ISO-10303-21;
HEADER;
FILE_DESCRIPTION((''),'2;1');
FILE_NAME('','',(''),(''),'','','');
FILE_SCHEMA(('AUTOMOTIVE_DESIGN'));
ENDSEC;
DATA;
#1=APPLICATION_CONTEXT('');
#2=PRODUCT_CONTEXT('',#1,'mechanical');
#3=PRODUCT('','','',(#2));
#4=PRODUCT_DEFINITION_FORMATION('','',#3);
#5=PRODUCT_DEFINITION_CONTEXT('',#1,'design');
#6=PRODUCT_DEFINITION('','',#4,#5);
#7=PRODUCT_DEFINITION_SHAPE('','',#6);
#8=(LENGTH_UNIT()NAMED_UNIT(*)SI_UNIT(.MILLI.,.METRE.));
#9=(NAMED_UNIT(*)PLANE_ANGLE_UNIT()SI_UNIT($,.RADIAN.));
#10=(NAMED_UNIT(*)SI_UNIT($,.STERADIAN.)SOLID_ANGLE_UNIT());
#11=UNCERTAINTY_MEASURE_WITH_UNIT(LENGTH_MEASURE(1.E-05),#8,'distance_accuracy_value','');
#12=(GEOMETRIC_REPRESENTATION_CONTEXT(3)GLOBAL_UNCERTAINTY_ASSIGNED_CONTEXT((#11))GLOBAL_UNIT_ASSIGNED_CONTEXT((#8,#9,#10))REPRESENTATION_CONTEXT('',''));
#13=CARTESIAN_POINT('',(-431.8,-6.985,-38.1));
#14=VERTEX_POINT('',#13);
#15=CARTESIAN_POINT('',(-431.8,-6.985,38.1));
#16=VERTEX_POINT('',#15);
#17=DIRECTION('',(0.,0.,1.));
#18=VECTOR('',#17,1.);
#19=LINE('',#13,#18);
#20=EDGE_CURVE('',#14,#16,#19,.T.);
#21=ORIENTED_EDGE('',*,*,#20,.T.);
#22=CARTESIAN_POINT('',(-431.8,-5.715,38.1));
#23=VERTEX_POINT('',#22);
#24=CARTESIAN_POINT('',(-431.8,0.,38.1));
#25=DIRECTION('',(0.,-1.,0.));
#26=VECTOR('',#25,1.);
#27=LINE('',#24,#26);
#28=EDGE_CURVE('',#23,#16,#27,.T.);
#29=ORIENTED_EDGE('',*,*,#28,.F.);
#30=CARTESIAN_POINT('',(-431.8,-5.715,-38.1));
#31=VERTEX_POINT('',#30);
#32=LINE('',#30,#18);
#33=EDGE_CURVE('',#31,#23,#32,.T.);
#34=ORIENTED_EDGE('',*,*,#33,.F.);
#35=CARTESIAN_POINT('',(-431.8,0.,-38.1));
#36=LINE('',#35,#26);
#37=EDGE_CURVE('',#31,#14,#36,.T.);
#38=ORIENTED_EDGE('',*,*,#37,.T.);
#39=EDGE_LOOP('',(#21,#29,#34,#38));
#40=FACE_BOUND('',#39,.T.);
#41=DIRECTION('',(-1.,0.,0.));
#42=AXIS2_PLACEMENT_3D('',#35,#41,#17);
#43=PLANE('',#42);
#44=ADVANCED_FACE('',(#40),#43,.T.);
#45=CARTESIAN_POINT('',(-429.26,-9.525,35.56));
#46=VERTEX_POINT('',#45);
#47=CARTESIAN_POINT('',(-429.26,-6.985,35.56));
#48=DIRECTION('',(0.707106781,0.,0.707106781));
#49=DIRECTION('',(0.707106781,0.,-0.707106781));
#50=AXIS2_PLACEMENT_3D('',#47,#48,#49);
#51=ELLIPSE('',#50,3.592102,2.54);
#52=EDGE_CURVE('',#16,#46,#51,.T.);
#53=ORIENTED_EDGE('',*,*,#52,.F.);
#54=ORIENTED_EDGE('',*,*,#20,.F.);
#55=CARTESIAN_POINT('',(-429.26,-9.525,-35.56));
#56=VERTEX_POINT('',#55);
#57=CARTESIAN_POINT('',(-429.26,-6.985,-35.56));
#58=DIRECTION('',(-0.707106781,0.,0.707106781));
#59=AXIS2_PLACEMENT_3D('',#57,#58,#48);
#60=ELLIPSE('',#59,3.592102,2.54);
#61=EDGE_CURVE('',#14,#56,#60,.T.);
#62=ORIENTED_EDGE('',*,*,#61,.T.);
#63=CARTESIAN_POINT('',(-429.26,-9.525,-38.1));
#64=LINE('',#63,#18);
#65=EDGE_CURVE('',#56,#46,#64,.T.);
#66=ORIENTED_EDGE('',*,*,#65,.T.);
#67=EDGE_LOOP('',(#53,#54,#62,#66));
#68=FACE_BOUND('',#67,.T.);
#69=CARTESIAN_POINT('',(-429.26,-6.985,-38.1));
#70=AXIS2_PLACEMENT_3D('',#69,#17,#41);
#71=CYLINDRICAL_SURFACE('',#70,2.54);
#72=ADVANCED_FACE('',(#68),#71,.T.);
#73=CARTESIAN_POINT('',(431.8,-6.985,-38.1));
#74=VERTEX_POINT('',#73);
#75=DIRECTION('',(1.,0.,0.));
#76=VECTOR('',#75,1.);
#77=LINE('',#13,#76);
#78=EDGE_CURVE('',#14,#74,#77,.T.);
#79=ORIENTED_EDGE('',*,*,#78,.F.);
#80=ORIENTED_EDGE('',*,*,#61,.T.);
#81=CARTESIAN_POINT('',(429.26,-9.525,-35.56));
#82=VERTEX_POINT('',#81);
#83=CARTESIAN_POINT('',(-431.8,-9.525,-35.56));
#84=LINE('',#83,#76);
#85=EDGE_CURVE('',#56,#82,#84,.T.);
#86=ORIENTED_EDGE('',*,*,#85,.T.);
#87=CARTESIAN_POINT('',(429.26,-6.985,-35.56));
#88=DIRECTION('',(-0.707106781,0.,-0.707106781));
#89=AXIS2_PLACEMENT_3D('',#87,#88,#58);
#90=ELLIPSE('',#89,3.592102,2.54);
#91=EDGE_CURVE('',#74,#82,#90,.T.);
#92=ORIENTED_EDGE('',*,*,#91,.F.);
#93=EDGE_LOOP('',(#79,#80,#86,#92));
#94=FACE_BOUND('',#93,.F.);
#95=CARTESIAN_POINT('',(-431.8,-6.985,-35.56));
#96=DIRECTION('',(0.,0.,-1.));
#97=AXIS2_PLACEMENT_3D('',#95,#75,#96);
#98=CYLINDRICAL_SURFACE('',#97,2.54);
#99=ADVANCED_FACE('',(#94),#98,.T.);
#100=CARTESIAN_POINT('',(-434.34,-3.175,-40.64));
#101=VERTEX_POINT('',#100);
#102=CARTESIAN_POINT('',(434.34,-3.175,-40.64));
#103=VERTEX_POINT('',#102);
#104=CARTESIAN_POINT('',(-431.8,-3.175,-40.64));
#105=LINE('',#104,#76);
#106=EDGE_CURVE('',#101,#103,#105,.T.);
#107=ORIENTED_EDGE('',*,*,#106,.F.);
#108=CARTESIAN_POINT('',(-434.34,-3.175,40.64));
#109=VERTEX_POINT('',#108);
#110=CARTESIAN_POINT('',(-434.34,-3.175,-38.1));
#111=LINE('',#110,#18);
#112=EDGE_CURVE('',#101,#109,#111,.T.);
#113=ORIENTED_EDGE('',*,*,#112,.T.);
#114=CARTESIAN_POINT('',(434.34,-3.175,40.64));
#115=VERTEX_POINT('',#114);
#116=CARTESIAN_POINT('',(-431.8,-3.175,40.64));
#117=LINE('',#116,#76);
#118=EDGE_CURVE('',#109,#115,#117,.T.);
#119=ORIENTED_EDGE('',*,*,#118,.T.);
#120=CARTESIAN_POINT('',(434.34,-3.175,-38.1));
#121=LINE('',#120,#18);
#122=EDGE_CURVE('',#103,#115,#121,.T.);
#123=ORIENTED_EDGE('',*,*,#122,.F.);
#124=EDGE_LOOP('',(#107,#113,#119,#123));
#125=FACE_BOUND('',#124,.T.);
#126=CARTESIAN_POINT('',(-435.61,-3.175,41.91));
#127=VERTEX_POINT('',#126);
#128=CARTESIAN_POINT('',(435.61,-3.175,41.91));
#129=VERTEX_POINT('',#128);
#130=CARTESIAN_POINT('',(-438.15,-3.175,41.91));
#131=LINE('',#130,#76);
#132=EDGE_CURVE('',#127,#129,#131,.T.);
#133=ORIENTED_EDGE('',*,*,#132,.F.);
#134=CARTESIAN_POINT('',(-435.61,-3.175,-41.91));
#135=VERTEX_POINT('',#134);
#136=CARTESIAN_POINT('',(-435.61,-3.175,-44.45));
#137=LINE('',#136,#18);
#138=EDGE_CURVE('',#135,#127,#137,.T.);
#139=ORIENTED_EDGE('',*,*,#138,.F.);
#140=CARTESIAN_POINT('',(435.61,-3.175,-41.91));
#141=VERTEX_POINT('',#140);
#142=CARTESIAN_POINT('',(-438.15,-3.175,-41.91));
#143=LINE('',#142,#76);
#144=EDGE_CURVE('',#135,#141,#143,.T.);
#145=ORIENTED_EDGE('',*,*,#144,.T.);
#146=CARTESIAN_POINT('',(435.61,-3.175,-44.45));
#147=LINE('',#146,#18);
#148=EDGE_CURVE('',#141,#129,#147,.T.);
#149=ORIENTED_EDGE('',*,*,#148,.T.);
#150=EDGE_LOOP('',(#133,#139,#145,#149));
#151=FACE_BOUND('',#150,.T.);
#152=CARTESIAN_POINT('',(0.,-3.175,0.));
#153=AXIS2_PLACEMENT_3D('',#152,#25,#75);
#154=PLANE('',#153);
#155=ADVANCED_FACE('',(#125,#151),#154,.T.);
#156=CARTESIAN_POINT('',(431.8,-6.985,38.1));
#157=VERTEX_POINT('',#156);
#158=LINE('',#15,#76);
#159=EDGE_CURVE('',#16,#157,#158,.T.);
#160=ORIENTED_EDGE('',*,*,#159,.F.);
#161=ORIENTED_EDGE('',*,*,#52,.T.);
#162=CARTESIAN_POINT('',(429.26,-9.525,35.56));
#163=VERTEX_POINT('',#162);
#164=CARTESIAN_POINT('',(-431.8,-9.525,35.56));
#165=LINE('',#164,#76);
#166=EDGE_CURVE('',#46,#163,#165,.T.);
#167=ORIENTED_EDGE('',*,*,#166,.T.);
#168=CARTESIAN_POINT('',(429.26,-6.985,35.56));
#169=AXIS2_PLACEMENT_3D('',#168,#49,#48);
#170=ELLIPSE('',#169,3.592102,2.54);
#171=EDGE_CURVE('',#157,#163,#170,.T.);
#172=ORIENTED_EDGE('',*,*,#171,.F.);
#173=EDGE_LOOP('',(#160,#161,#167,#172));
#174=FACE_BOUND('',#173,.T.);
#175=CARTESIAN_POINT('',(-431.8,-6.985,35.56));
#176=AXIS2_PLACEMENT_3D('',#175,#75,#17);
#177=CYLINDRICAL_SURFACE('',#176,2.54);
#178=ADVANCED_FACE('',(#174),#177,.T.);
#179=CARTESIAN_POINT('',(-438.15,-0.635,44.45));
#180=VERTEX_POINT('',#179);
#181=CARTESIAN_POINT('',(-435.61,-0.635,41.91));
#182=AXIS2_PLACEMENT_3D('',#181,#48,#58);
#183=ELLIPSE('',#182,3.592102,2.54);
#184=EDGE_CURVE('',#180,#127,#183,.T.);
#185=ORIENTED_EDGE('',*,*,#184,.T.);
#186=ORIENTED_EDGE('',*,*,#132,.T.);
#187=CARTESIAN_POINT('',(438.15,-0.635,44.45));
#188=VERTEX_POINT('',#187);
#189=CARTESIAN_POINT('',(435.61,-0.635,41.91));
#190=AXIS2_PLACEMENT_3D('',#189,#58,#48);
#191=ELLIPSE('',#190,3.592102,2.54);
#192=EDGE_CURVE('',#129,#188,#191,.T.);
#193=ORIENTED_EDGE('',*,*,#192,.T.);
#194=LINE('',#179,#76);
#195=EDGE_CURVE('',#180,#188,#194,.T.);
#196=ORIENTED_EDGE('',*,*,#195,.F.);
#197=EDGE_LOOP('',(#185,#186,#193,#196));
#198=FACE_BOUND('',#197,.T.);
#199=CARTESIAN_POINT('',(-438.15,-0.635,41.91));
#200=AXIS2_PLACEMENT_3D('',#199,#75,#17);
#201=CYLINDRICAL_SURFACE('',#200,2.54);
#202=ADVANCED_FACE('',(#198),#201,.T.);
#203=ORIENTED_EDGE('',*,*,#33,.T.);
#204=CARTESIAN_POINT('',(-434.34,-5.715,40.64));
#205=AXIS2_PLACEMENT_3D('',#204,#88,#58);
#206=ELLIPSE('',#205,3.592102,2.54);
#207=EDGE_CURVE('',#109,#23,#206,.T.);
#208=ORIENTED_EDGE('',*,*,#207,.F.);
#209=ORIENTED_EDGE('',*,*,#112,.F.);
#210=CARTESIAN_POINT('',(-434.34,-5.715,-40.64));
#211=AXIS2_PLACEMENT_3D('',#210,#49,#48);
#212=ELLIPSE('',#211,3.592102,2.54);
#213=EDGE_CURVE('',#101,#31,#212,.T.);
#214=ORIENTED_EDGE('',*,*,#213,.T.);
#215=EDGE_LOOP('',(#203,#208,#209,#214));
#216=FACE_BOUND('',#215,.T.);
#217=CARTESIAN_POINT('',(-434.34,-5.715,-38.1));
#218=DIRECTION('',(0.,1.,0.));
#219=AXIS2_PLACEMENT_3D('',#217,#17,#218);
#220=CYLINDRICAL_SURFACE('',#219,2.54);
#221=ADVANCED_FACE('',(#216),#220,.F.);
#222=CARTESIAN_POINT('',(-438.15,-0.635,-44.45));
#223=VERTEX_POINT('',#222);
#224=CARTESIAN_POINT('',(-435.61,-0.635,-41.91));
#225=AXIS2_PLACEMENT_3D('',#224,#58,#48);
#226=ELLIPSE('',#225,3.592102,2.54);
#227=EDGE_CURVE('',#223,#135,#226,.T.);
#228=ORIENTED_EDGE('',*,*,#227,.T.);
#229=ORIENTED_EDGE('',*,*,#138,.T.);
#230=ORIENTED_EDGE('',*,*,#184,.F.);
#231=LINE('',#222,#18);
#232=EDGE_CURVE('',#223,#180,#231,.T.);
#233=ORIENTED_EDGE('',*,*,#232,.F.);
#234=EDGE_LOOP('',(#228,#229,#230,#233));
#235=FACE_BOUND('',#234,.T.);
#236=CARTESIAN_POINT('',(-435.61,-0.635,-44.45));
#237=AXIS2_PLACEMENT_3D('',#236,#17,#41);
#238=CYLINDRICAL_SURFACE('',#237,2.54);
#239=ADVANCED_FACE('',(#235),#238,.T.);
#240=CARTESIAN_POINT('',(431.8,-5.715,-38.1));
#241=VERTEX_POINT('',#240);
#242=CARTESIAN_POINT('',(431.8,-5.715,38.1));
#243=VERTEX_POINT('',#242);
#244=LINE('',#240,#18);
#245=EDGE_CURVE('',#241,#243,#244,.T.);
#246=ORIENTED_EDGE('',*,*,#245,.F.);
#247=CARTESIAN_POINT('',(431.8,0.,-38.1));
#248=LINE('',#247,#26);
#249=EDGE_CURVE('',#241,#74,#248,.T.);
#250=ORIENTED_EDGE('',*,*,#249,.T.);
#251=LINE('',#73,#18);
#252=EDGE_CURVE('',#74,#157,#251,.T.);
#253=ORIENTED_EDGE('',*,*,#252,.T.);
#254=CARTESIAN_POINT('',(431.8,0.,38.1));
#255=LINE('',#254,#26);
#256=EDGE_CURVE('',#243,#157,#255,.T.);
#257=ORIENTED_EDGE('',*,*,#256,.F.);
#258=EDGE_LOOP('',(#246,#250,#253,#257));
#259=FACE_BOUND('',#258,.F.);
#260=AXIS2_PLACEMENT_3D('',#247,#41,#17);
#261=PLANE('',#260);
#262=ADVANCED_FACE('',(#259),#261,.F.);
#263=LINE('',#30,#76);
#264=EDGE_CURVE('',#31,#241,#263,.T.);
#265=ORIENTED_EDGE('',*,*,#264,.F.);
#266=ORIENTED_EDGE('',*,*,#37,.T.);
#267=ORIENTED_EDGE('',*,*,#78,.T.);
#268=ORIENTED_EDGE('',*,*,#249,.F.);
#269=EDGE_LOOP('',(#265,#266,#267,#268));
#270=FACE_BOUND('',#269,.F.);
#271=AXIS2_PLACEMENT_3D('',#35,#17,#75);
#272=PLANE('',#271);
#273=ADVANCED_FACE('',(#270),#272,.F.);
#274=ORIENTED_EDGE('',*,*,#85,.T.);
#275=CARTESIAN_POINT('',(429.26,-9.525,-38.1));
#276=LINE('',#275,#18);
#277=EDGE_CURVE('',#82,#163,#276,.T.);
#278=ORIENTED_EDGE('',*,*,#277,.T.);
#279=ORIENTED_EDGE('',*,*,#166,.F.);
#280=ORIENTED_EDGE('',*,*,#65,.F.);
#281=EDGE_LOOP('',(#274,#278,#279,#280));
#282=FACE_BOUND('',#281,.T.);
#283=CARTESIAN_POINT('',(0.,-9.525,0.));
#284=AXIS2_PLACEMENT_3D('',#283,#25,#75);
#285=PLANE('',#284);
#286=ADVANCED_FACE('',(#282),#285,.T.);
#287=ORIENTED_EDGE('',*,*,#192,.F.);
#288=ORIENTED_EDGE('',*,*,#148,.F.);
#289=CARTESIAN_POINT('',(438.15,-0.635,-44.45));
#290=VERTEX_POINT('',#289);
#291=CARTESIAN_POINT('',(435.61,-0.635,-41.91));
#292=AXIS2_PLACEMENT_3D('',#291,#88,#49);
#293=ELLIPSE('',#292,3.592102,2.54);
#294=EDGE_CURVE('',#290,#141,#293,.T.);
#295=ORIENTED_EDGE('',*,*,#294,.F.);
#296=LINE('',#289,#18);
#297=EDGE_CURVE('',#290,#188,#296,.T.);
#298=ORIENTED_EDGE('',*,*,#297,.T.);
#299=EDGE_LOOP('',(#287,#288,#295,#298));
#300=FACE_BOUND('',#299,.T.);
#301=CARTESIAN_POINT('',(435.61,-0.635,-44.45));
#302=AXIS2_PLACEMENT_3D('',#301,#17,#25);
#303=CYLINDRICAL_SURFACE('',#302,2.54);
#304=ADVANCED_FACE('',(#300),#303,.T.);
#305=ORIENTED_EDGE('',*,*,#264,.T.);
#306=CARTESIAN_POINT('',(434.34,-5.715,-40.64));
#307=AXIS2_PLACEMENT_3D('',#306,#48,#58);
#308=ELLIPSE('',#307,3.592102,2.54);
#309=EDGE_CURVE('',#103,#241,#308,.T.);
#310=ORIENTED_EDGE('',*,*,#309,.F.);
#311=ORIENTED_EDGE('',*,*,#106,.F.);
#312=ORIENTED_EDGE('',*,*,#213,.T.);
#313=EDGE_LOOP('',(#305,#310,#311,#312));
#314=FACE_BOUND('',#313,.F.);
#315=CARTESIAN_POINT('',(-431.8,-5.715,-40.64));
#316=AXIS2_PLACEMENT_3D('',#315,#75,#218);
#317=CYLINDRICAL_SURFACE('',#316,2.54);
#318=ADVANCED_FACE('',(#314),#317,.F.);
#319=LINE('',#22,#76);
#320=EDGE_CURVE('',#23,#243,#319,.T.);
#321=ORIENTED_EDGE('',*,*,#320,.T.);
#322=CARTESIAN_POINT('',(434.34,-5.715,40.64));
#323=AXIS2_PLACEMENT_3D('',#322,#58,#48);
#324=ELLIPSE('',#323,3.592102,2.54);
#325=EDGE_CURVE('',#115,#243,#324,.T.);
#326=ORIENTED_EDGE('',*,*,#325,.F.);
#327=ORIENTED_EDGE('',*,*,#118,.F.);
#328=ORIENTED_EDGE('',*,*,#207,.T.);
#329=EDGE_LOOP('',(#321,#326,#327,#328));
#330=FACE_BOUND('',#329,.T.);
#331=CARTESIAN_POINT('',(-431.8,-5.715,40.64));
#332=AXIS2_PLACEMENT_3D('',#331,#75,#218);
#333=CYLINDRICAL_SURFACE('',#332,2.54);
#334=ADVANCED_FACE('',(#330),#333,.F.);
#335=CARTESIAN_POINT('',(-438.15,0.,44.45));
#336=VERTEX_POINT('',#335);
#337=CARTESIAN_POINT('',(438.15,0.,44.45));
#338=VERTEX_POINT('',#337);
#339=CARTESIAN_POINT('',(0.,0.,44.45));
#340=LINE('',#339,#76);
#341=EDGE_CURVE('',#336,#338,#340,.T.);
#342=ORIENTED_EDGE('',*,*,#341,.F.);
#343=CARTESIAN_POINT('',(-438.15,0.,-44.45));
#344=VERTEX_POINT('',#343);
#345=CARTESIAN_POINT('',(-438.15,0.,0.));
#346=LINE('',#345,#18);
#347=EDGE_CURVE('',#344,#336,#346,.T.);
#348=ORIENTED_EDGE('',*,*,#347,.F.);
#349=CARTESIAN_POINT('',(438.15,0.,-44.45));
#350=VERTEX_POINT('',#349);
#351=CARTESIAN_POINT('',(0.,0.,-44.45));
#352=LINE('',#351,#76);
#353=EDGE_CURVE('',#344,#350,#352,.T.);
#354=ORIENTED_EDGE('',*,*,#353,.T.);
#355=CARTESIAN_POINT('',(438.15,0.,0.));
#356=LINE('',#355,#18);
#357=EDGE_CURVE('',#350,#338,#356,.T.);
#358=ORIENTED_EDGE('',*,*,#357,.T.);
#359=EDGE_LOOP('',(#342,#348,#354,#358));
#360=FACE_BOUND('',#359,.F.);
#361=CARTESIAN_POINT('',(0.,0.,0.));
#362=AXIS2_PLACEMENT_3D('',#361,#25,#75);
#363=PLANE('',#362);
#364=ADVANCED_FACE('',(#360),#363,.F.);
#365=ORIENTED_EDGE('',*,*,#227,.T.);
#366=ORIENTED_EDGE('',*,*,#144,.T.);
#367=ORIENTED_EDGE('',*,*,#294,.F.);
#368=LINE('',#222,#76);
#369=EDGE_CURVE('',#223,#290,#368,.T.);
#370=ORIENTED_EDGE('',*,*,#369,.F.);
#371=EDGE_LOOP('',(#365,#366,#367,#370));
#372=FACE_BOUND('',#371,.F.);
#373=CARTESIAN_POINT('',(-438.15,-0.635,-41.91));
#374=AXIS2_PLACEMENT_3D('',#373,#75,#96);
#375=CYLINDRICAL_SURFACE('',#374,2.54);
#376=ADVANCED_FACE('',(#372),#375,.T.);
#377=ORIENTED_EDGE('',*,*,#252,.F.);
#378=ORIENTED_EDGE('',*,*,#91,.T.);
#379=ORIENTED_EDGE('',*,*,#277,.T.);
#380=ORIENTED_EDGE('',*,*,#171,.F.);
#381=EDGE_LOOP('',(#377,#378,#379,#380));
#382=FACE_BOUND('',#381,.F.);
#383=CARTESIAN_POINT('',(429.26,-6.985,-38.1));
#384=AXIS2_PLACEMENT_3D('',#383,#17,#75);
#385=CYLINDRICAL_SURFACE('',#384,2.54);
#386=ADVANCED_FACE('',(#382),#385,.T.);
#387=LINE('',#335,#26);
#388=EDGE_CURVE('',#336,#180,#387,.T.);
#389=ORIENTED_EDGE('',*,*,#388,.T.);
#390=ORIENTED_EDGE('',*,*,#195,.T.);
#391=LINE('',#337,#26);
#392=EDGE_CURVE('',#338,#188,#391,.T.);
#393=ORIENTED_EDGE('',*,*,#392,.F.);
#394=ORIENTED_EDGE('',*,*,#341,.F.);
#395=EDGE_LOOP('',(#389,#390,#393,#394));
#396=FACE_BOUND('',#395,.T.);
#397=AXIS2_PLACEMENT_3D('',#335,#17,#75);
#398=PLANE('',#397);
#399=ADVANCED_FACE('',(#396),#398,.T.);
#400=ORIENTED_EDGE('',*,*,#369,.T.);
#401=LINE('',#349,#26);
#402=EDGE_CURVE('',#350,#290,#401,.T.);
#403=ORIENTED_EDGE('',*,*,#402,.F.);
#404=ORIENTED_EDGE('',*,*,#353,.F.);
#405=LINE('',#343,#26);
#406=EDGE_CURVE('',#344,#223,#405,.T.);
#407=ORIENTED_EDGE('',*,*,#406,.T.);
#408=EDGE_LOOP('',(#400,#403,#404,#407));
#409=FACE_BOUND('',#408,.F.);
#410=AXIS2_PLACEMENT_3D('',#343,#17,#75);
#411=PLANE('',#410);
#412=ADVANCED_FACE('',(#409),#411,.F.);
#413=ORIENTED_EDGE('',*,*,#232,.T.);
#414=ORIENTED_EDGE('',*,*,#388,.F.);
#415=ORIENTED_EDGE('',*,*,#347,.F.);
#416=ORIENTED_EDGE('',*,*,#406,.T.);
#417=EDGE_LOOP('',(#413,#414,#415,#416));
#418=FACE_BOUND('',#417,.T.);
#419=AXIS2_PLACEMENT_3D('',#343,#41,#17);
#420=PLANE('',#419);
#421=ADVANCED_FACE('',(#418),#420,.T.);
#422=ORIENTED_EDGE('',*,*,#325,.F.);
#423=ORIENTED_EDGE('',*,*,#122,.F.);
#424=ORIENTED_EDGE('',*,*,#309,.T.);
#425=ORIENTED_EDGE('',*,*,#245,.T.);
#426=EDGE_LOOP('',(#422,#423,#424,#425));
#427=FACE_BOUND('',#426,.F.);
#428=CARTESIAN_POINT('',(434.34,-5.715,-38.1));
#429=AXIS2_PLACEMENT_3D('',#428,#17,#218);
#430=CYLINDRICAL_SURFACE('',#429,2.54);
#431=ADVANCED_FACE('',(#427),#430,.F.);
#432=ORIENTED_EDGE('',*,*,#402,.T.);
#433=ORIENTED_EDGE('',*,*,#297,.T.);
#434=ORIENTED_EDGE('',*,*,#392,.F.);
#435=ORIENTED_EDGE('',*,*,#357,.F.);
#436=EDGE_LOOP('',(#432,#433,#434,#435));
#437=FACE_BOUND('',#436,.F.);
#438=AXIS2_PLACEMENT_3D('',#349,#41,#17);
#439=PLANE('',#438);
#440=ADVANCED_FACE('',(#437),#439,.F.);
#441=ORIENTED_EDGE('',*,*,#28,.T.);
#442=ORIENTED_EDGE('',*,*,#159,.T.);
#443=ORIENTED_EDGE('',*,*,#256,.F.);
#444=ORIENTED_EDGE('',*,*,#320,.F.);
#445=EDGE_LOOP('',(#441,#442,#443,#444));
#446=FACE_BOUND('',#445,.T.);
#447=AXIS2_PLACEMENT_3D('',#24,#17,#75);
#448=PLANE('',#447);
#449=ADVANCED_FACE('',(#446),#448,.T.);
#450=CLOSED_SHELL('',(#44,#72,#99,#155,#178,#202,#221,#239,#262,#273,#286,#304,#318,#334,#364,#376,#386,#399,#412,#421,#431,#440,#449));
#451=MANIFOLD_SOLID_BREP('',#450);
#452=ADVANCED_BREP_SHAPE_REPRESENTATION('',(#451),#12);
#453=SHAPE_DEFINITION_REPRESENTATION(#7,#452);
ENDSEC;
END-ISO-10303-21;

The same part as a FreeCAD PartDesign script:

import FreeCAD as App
import Part
import Sketcher

V = App.Vector
Q = App.Units.Quantity


def edges_at(feature, points):
    """Names of the edges that pass closest to the given points."""
    edges = feature.Shape.Edges
    near = lambda p: min(range(len(edges)), key=lambda i: edges[i].distToShape(Part.Vertex(*p))[0])
    return sorted({f"Edge{near(p) + 1}" for p in points})


def add_polygon(sketch, points):
    """Adds a closed chain of lines whose ends are joined by coincident constraints."""
    first, n = sketch.GeometryCount, len(points)
    for a, b in zip(points, points[1:] + points[:1]):
        sketch.addGeometry(Part.LineSegment(App.Vector(*a, 0), App.Vector(*b, 0)), False)
    for i in range(n):
        sketch.addConstraint(Sketcher.Constraint("Coincident", first + i, 2, first + (i + 1) % n, 1))

doc = App.newDocument("Part")
body = doc.addObject("PartDesign::Body", "Body")

sketch1 = body.newObject("Sketcher::SketchObject", "Sketch")
sketch1.AttachmentSupport = (doc.getObject("XZ_Plane"), [""])
sketch1.MapMode = "FlatFace"
add_polygon(sketch1, [(-431.8, 38.1), (-431.8, -38.1), (431.8, -38.1), (431.8, 38.1)])
sketch1.addConstraint(Sketcher.Constraint("Vertical", 0))
sketch1.addConstraint(Sketcher.Constraint("Horizontal", 1))
sketch1.addConstraint(Sketcher.Constraint("Vertical", 2))
sketch1.addConstraint(Sketcher.Constraint("Horizontal", 3))
sketch1.addConstraint(Sketcher.Constraint("Symmetric", 0, 2, 2, 2, -1, 1))
sketch1.addConstraint(Sketcher.Constraint("DistanceX", 1, 1, 1, 2, Q("34 in")))
sketch1.addConstraint(Sketcher.Constraint("DistanceY", 0, 2, 0, 1, Q("3 in")))
pad1 = body.newObject("PartDesign::Pad", "Pad")
pad1.Profile = sketch1
pad1.Length = Q("0.375 in")

sketch2 = body.newObject("Sketcher::SketchObject", "Sketch001")
sketch2.AttachmentSupport = (doc.getObject("XZ_Plane"), [""])
sketch2.MapMode = "FlatFace"
add_polygon(sketch2, [(-438.15, 44.45), (-438.15, -44.45), (438.15, -44.45), (438.15, 44.45)])
add_polygon(sketch2, [(431.8, -38.1), (-431.8, -38.1), (-431.8, 38.1), (431.8, 38.1)])
sketch2.addConstraint(Sketcher.Constraint("Vertical", 0))
sketch2.addConstraint(Sketcher.Constraint("Horizontal", 1))
sketch2.addConstraint(Sketcher.Constraint("Vertical", 2))
sketch2.addConstraint(Sketcher.Constraint("Horizontal", 3))
sketch2.addConstraint(Sketcher.Constraint("Horizontal", 4))
sketch2.addConstraint(Sketcher.Constraint("Vertical", 5))
sketch2.addConstraint(Sketcher.Constraint("Horizontal", 6))
sketch2.addConstraint(Sketcher.Constraint("Vertical", 7))
sketch2.addConstraint(Sketcher.Constraint("Symmetric", 0, 2, 2, 2, -1, 1))
sketch2.addConstraint(Sketcher.Constraint("Symmetric", 4, 2, 6, 2, -1, 1))
sketch2.addConstraint(Sketcher.Constraint("DistanceX", 4, 2, 4, 1, Q("34 in")))
sketch2.addConstraint(Sketcher.Constraint("DistanceY", 5, 1, 5, 2, Q("3 in")))
sketch2.addConstraint(Sketcher.Constraint("DistanceX", 1, 1, 1, 2, Q("34.5 in")))
sketch2.addConstraint(Sketcher.Constraint("DistanceY", 0, 2, 0, 1, Q("3.5 in")))
pad2 = body.newObject("PartDesign::Pad", "Pad001")
pad2.Profile = sketch2
pad2.Length = Q("0.125 in")
doc.recompute()

fillet = body.newObject("PartDesign::Fillet", "Fillet")
fillet.Base = (pad2, edges_at(pad2, [
    (431.8, -9.525, 0),
    (0, -9.525, 38.1),
    (-431.8, -9.525, 0),
    (0, -9.525, -38.1),
    (-438.15, -3.175, 0),
    (0, -3.175, -44.45),
    (438.15, -3.175, 0),
    (0, -3.175, 44.45),
    (-431.8, -3.175, 0),
    (0, -3.175, 38.1),
    (431.8, -3.175, 0),
    (0, -3.175, -38.1),
]))
fillet.Radius = Q("0.1 in")

doc.recompute()
